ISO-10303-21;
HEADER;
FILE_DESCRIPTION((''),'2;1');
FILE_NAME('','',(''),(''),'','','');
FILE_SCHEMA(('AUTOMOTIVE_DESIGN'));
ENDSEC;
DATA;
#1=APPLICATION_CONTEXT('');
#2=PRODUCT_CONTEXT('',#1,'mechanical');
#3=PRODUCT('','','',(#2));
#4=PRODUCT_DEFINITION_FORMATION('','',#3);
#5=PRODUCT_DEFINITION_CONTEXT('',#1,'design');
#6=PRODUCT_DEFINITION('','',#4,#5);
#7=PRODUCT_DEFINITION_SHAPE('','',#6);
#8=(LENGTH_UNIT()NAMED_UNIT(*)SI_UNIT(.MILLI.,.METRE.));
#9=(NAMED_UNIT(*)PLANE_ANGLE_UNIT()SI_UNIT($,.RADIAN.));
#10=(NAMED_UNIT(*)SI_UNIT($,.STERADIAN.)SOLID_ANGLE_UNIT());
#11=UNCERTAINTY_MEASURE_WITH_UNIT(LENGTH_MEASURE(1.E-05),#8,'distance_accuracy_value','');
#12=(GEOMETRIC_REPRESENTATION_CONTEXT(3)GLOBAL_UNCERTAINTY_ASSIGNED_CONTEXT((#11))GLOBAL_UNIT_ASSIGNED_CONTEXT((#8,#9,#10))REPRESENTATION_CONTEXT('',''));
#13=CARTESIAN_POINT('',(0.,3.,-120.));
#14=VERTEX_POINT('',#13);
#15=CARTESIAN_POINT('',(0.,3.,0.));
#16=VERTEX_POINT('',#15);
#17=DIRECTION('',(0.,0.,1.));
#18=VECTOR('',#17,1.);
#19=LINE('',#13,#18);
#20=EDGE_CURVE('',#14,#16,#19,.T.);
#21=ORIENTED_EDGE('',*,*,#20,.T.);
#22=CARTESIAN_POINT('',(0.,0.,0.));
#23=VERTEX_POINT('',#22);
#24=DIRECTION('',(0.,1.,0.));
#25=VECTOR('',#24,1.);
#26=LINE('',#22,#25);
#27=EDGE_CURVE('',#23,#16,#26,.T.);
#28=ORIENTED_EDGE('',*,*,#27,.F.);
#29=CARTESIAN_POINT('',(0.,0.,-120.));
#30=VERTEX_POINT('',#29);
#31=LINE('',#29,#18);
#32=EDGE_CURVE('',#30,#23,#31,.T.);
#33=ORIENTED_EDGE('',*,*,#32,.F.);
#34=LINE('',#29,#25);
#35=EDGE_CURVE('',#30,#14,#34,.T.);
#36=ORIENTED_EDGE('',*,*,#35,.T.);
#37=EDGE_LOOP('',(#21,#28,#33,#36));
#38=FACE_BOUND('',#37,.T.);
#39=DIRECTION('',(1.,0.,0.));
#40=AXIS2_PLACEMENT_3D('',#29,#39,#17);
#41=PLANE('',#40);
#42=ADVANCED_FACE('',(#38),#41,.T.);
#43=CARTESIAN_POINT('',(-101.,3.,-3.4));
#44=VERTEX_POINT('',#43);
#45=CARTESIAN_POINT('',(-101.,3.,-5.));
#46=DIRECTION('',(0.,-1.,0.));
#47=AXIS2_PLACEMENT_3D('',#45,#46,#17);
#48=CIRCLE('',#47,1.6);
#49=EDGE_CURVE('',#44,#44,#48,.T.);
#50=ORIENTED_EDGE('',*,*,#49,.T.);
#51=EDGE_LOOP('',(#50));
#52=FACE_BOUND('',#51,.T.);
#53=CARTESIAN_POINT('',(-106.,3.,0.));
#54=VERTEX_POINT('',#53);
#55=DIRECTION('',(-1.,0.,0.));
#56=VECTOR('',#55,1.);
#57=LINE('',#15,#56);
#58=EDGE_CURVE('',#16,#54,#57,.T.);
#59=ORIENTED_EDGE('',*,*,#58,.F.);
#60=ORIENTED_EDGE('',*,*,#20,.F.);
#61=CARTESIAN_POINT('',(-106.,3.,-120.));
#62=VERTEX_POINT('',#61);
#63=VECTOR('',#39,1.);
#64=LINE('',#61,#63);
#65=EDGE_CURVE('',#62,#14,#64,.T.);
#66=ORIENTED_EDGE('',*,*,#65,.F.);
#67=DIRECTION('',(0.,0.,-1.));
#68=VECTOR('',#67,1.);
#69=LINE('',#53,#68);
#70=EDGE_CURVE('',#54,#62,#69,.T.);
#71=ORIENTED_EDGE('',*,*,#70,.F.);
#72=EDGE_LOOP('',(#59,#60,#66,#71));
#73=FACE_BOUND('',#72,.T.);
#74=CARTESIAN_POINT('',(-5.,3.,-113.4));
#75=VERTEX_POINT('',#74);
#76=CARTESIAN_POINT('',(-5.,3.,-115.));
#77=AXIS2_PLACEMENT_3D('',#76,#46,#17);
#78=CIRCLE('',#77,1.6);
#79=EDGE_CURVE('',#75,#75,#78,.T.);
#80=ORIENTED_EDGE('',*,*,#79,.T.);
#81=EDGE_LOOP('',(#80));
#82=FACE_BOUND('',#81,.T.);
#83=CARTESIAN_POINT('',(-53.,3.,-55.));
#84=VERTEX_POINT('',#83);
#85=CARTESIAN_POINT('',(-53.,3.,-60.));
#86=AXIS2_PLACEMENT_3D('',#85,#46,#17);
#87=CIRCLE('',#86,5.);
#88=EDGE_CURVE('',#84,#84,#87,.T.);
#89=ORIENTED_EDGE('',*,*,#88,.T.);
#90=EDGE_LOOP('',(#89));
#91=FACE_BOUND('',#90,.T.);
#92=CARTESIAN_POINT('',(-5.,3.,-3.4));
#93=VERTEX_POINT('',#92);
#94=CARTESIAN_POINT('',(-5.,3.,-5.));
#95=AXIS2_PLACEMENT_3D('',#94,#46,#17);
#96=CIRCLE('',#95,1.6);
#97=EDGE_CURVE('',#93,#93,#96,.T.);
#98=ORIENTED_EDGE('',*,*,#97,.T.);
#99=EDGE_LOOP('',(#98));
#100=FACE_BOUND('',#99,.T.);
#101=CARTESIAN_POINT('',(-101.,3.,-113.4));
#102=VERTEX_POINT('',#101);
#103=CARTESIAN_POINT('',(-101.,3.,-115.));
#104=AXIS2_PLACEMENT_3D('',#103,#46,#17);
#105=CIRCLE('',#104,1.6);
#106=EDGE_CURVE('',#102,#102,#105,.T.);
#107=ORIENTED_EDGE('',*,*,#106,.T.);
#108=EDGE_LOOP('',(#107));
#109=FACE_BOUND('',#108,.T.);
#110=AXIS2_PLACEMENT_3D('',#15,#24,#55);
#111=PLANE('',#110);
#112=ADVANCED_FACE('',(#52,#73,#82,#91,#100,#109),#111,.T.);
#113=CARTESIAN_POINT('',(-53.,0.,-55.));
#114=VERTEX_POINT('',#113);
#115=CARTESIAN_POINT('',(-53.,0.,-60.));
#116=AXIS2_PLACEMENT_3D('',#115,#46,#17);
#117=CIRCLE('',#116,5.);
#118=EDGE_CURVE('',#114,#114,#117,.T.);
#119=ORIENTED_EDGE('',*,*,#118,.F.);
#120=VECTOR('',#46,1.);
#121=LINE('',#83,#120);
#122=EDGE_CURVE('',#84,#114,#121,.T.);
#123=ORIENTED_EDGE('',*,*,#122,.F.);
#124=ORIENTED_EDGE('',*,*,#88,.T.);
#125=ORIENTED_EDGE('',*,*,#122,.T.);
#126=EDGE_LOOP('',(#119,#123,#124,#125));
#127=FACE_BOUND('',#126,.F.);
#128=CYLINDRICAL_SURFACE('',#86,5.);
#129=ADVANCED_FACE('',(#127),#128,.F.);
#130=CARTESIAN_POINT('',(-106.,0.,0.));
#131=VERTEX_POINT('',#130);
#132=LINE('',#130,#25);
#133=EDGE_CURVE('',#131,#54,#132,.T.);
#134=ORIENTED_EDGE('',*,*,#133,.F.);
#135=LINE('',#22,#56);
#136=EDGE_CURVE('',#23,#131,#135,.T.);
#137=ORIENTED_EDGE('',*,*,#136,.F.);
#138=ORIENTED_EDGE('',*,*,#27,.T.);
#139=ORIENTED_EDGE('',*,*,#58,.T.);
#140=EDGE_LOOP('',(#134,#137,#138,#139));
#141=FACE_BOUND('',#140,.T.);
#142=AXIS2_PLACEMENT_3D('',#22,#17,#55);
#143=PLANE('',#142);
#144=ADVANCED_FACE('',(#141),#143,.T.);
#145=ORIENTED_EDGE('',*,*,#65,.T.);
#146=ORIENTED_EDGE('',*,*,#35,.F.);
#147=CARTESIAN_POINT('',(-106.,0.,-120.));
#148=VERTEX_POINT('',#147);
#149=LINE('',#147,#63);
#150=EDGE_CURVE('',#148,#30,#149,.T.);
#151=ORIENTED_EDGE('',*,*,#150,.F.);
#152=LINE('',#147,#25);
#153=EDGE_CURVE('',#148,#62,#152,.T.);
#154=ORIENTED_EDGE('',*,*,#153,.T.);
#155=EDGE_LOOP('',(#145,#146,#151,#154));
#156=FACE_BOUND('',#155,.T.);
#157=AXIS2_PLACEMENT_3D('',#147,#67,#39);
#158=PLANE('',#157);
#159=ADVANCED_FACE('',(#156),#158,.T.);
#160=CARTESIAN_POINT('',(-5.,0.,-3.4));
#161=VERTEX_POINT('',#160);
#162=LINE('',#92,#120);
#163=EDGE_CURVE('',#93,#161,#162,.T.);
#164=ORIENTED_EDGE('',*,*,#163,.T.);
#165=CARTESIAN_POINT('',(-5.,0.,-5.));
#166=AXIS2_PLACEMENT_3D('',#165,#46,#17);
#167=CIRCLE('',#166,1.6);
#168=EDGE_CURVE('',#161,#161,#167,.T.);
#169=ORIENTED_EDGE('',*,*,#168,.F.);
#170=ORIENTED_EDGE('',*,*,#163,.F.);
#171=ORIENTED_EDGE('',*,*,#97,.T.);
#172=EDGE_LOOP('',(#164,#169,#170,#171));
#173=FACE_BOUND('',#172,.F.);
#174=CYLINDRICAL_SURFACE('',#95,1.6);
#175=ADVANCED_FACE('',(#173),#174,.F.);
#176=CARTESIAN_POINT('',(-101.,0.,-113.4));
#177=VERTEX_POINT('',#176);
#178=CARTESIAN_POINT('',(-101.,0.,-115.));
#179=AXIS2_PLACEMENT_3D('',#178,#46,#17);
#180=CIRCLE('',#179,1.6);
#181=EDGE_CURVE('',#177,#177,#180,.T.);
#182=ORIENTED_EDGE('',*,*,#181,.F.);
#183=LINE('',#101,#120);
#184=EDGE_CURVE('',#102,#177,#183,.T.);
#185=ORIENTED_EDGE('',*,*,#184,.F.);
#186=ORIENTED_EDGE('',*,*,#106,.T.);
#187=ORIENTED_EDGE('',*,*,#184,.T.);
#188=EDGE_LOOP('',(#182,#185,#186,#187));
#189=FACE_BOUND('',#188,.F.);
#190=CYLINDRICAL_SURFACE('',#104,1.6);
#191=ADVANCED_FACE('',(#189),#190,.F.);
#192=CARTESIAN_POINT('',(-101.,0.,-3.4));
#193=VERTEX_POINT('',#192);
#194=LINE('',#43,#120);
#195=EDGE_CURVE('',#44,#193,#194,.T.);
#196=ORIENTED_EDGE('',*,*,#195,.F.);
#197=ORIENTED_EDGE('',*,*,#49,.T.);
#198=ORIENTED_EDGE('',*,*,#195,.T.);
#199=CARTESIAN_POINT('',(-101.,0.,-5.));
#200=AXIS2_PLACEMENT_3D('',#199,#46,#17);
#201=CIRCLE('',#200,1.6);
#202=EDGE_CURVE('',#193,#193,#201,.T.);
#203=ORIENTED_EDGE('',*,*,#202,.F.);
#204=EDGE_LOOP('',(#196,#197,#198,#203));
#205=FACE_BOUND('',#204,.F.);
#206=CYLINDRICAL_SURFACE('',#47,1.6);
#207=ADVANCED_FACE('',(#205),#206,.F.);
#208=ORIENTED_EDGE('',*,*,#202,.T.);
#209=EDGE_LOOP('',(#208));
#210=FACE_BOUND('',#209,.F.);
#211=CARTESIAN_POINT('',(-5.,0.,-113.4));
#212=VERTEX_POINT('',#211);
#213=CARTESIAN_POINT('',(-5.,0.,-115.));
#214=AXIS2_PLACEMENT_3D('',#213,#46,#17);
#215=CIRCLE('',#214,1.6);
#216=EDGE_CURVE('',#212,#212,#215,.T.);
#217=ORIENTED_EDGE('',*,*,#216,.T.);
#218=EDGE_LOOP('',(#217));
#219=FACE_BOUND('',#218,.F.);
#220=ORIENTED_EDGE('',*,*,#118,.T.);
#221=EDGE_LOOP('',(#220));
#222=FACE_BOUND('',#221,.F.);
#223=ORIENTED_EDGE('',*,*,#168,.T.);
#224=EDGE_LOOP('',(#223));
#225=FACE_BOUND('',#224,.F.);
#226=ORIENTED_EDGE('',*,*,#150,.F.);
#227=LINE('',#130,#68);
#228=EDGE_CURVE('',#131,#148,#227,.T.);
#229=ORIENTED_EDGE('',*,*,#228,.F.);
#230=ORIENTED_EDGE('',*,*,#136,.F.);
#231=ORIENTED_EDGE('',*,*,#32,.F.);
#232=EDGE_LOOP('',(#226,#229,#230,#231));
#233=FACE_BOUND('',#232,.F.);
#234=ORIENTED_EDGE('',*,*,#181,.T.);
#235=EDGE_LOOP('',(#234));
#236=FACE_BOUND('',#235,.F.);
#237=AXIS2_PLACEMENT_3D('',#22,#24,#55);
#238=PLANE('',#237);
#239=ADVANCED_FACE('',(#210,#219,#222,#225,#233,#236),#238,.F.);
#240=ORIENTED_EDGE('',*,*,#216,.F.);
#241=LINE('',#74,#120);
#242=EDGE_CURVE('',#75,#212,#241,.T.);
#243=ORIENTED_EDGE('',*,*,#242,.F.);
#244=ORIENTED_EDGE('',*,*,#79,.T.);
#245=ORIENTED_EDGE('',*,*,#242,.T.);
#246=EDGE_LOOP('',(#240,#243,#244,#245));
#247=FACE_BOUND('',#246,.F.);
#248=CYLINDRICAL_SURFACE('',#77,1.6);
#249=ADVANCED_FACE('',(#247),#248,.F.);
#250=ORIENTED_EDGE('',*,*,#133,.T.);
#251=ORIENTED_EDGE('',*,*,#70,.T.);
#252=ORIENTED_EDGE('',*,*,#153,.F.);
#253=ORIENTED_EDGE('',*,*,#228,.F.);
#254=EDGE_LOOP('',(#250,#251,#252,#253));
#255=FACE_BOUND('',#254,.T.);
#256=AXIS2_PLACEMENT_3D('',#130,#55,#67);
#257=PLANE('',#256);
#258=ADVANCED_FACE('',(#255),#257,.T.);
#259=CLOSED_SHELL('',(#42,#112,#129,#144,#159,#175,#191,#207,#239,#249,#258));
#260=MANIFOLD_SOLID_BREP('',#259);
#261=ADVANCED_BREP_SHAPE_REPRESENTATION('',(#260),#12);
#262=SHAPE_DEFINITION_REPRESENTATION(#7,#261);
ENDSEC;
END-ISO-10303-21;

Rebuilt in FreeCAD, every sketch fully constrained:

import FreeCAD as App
import Part
import Sketcher
from FreeCAD import Vector

doc = App.newDocument("Part")
body = doc.addObject("PartDesign::Body", "Body")

# Sketch on XZ plane
sketch1 = body.newObject("Sketcher::SketchObject", "Sketch")
sketch1.AttachmentSupport = (doc.getObject("XZ_Plane"), [""])
sketch1.MapMode = "FlatFace"
sketch1.addGeometry(Part.LineSegment(Vector(-106, 0, 0), Vector(0, 0, 0)), False)
sketch1.addGeometry(Part.LineSegment(Vector(0, 0, 0), Vector(0, -120, 0)), False)
sketch1.addGeometry(Part.LineSegment(Vector(0, -120, 0), Vector(-106, -120, 0)), False)
sketch1.addGeometry(Part.LineSegment(Vector(-106, -120, 0), Vector(-106, 0, 0)), False)
sketch1.addConstraint(Sketcher.Constraint("Coincident", 0, 2, 1, 1))
sketch1.addConstraint(Sketcher.Constraint("Coincident", 1, 2, 2, 1))
sketch1.addConstraint(Sketcher.Constraint("Coincident", 2, 2, 3, 1))
sketch1.addConstraint(Sketcher.Constraint("Coincident", 3, 2, 0, 1))
sketch1.addConstraint(Sketcher.Constraint("Horizontal", 0))
sketch1.addConstraint(Sketcher.Constraint("Vertical", 1))
sketch1.addConstraint(Sketcher.Constraint("Horizontal", 2))
sketch1.addConstraint(Sketcher.Constraint("Vertical", 3))
sketch1.addConstraint(Sketcher.Constraint("Coincident", 0, 2, -1, 1))
sketch1.addConstraint(Sketcher.Constraint("DistanceX", 0, 1, 0, 2, 106.0))
sketch1.addConstraint(Sketcher.Constraint("DistanceY", 1, 2, 1, 1, 120.0))
pad1 = body.newObject("PartDesign::Pad", "Pad")
pad1.Profile = sketch1
pad1.Length = 3
pad1.Reversed = True

# Sketch on XZ plane
sketch2 = body.newObject("Sketcher::SketchObject", "Sketch001")
sketch2.AttachmentSupport = (doc.getObject("XZ_Plane"), [""])
sketch2.MapMode = "FlatFace"
sketch2.AttachmentOffset = App.Placement(Vector(0, 0, -3), App.Rotation())
sketch2.addGeometry(Part.Circle(Vector(-101, -5, 0), Vector(0, 0, 1), 1.6), False)
sketch2.addGeometry(Part.Circle(Vector(-5, -5, 0), Vector(0, 0, 1), 1.6), False)
sketch2.addGeometry(Part.Circle(Vector(-5, -115, 0), Vector(0, 0, 1), 1.6), False)
sketch2.addGeometry(Part.Circle(Vector(-101, -115, 0), Vector(0, 0, 1), 1.6), False)
sketch2.addConstraint(Sketcher.Constraint("Equal", 0, 1))
sketch2.addConstraint(Sketcher.Constraint("Equal", 1, 2))
sketch2.addConstraint(Sketcher.Constraint("Equal", 2, 3))
sketch2.addConstraint(Sketcher.Constraint("Horizontal", 0, 3, 1, 3))
sketch2.addConstraint(Sketcher.Constraint("Horizontal", 2, 3, 3, 3))
sketch2.addConstraint(Sketcher.Constraint("Vertical", 1, 3, 2, 3))
sketch2.addConstraint(Sketcher.Constraint("Vertical", 0, 3, 3, 3))
sketch2.addConstraint(Sketcher.Constraint("Diameter", 0, 3.2))
sketch2.addConstraint(Sketcher.Constraint("DistanceX", 0, 3, -1, 1, 101.0))
sketch2.addConstraint(Sketcher.Constraint("DistanceY", 0, 3, -1, 1, 5.0))
sketch2.addConstraint(Sketcher.Constraint("DistanceX", 1, 3, -1, 1, 5.0))
sketch2.addConstraint(Sketcher.Constraint("DistanceY", 2, 3, -1, 1, 115.0))
doc.recompute()
hole = body.newObject("PartDesign::Hole", "Hole")
hole.Profile = sketch2
hole.ThreadType = "None"
hole.Diameter = 3.2
hole.DepthType = "ThroughAll"
hole.Reversed = True

# Sketch on XZ plane
sketch3 = body.newObject("Sketcher::SketchObject", "Sketch002")
sketch3.AttachmentSupport = (doc.getObject("XZ_Plane"), [""])
sketch3.MapMode = "FlatFace"
sketch3.AttachmentOffset = App.Placement(Vector(0, 0, -3), App.Rotation())
sketch3.addGeometry(Part.Circle(Vector(-53, -60, 0), Vector(0, 0, 1), 5), False)
sketch3.addConstraint(Sketcher.Constraint("Diameter", 0, 10.0))
sketch3.addConstraint(Sketcher.Constraint("DistanceX", 0, 3, -1, 1, 53.0))
sketch3.addConstraint(Sketcher.Constraint("DistanceY", 0, 3, -1, 1, 60.0))
doc.recompute()
hole2 = body.newObject("PartDesign::Hole", "Hole001")
hole2.Profile = sketch3
hole2.ThreadType = "None"
hole2.Diameter = 10
hole2.DepthType = "ThroughAll"
hole2.Reversed = True

doc.recompute()
